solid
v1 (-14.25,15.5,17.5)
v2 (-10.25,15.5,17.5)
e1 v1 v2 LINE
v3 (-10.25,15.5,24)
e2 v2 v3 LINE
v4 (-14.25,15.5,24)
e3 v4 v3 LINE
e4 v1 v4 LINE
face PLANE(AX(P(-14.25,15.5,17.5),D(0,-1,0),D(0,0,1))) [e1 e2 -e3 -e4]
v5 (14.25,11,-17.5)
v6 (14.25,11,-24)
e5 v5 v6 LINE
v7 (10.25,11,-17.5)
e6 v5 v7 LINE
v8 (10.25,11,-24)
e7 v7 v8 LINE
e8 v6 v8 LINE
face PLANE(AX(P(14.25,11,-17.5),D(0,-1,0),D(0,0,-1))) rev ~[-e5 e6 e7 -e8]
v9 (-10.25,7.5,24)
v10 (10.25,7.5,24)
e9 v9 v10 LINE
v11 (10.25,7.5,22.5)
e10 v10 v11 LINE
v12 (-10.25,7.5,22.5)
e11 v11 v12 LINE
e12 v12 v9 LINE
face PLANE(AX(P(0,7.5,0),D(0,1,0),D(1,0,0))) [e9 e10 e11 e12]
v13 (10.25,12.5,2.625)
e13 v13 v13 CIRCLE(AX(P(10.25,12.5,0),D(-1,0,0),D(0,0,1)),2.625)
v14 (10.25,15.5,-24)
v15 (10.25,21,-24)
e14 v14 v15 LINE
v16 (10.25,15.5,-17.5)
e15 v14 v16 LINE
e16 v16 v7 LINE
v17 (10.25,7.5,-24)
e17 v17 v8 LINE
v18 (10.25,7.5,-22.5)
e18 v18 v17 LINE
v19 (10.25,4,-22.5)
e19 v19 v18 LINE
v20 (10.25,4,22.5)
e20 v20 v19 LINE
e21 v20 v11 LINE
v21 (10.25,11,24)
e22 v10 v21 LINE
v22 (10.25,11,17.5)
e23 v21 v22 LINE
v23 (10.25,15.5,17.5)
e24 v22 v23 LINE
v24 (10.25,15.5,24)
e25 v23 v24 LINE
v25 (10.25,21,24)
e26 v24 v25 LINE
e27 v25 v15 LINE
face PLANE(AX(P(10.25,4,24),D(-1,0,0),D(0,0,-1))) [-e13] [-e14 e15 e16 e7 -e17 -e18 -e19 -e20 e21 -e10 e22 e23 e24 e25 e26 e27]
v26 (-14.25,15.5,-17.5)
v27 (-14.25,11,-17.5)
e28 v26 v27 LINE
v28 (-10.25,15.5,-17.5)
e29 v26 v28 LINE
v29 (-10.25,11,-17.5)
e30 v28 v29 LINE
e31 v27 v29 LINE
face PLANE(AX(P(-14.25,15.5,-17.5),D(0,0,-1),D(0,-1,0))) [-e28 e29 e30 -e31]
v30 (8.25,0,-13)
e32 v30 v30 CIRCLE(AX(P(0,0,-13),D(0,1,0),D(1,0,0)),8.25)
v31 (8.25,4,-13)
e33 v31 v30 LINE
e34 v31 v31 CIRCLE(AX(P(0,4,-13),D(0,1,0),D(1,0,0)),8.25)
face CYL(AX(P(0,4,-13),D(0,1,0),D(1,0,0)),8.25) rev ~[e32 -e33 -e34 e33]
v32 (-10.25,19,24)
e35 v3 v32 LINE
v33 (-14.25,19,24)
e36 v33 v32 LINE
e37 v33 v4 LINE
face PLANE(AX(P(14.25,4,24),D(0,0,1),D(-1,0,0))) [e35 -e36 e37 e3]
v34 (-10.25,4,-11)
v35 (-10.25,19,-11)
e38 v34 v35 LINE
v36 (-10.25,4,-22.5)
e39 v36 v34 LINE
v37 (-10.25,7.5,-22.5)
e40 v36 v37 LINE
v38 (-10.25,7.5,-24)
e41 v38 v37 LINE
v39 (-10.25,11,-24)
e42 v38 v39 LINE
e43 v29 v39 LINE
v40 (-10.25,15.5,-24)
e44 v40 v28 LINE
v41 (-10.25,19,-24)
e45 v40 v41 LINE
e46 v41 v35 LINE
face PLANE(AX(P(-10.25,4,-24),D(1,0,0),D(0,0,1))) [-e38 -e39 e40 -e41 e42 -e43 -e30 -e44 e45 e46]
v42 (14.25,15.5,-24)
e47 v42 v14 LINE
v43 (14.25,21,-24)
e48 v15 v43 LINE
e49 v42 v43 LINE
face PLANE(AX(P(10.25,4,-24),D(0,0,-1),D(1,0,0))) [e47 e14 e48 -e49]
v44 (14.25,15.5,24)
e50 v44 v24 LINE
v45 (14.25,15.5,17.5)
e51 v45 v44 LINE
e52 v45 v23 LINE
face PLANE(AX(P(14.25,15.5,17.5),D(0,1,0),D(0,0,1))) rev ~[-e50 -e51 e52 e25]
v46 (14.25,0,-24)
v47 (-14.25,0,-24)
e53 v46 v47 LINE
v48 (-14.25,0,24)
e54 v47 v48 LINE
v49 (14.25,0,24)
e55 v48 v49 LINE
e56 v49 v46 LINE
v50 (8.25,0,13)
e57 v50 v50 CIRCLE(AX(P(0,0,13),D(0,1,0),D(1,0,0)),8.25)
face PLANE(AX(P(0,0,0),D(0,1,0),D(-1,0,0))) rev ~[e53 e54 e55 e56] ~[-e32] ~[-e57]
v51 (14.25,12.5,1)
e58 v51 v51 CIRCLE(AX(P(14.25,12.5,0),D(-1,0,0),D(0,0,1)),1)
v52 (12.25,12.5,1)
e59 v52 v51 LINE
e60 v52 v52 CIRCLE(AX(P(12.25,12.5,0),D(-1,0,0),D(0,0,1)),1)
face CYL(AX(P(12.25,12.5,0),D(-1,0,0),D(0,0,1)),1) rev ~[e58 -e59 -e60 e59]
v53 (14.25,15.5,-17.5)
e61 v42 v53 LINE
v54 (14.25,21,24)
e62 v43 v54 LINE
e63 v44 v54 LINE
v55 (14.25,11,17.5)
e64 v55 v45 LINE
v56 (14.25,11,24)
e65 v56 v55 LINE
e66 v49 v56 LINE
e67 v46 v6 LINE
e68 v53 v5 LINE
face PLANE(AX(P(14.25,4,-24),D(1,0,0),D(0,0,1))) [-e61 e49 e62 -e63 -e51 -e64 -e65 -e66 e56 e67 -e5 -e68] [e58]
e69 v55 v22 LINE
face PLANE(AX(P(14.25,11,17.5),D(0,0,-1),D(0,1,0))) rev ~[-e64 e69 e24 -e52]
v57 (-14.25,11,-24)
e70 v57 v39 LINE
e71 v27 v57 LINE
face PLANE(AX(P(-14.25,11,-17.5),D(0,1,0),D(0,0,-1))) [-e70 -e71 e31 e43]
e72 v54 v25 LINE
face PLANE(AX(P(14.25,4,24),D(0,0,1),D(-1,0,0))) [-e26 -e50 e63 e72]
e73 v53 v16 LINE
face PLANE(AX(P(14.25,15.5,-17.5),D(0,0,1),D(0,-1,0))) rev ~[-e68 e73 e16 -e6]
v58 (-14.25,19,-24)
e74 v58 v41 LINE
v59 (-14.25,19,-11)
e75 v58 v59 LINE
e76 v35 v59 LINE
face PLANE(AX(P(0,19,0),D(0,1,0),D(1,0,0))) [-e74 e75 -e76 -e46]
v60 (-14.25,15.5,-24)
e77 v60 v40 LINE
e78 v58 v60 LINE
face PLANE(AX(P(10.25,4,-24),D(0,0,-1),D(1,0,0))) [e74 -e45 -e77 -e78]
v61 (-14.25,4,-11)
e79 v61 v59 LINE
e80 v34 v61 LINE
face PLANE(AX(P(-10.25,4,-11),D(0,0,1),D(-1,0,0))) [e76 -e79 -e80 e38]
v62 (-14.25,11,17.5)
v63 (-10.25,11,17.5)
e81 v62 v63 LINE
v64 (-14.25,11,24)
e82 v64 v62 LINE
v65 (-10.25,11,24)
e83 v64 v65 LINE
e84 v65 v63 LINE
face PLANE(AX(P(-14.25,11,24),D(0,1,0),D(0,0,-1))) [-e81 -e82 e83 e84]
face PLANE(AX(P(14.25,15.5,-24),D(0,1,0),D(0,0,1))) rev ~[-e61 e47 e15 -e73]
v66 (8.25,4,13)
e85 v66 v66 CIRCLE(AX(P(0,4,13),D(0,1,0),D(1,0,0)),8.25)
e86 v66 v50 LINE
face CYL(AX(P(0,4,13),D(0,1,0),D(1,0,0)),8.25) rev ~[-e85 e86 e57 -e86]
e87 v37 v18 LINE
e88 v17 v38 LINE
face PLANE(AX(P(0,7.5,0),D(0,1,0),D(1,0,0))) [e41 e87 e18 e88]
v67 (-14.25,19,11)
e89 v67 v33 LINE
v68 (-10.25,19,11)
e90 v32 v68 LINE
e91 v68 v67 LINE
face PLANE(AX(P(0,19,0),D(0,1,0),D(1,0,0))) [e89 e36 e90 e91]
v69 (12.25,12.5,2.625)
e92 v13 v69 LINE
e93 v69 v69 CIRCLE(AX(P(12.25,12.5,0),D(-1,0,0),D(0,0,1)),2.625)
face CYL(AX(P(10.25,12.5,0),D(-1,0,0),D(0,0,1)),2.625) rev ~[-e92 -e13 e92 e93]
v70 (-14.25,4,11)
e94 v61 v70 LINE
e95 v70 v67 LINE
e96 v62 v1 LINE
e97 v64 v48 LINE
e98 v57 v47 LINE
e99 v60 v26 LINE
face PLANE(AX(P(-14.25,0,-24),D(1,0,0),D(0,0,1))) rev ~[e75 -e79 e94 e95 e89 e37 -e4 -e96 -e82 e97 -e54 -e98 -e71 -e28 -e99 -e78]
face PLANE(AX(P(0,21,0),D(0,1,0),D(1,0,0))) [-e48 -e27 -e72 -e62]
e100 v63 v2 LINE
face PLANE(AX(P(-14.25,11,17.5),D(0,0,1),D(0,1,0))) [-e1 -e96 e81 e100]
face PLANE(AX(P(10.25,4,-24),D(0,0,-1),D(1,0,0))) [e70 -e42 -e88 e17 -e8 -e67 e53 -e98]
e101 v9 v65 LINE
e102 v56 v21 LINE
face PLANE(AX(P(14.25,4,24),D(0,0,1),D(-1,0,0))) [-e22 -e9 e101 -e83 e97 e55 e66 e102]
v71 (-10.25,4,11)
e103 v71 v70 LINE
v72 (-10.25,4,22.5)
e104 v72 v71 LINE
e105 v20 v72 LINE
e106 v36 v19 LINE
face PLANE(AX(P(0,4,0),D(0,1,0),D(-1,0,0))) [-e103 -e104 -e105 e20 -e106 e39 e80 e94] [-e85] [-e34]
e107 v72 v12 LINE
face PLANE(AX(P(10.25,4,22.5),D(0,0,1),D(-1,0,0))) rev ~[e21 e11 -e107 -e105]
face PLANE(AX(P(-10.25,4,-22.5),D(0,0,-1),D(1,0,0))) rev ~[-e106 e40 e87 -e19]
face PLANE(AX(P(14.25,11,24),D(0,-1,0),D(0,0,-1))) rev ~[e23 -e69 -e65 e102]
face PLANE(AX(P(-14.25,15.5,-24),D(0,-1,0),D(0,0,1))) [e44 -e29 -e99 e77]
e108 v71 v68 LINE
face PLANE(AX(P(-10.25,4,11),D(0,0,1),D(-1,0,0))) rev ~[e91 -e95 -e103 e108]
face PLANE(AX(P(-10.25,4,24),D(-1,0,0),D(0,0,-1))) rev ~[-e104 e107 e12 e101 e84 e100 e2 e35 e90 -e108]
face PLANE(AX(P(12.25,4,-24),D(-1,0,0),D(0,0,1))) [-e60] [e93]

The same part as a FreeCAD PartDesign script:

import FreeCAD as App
import Part
import Sketcher
Q = App.Units.Quantity


def add_polygon(sketch, points):
    """Adds a closed chain of lines whose ends are joined by coincident constraints."""
    first, n = sketch.GeometryCount, len(points)
    for a, b in zip(points, points[1:] + points[:1]):
        sketch.addGeometry(Part.LineSegment(App.Vector(*a, 0), App.Vector(*b, 0)), False)
    for i in range(n):
        sketch.addConstraint(Sketcher.Constraint("Coincident", first + i, 2, first + (i + 1) % n, 1))

doc = App.newDocument("Part")
body = doc.addObject("PartDesign::Body", "Body")

# Sketch on XZ plane
sketch1 = body.newObject("Sketcher::SketchObject", "Sketch")
sketch1.AttachmentSupport = (doc.getObject("XZ_Plane"), [""])
sketch1.MapMode = "FlatFace"
add_polygon(sketch1, [(-14, -24), (-14, 24), (14, 24), (14, -24)])  # lines 0-3
sketch1.addConstraint(Sketcher.Constraint("Vertical", 0))
sketch1.addConstraint(Sketcher.Constraint("Horizontal", 1))
sketch1.addConstraint(Sketcher.Constraint("Vertical", 2))
sketch1.addConstraint(Sketcher.Constraint("Horizontal", 3))
sketch1.addConstraint(Sketcher.Constraint("Symmetric", 0, 2, 2, 2, -1, 1))
sketch1.addConstraint(Sketcher.Constraint("DistanceY", 0, 1, 0, 2, Q("48 mm")))
sketch1.addConstraint(Sketcher.Constraint("DistanceX", 1, 1, 1, 2, Q("28.5 mm")))
pad1 = body.newObject("PartDesign::Pad", "Pad")
pad1.Profile = sketch1
pad1.Length = 4
pad1.Reversed = True

# Sketch on XZ plane
sketch2 = body.newObject("Sketcher::SketchObject", "Sketch001")
sketch2.AttachmentSupport = (doc.getObject("XZ_Plane"), [""])
sketch2.MapMode = "FlatFace"
sketch2.AttachmentOffset = App.Placement(App.Vector(0, 0, -4), App.Rotation())
sketch2.addGeometry(Part.Circle(App.Vector(0, 13, 0), App.Vector(0, 0, 1), 8), False)
sketch2.addGeometry(Part.Circle(App.Vector(0, -13, 0), App.Vector(0, 0, 1), 8), False)
sketch2.addConstraint(Sketcher.Constraint("Equal", 0, 1))
sketch2.addConstraint(Sketcher.Constraint("Symmetric", 0, 3, 1, 3, -1, 1))
sketch2.addConstraint(Sketcher.Constraint("PointOnObject", 0, 3, -2))
sketch2.addConstraint(Sketcher.Constraint("Diameter", 0, Q("16.5 mm")))
sketch2.addConstraint(Sketcher.Constraint("DistanceY", 1, 3, 0, 3, Q("26 mm")))
pocket1 = body.newObject("PartDesign::Pocket", "Pocket")
pocket1.Profile = sketch2
pocket1.Length = 4
pocket1.Reversed = True

# Sketch on XZ plane
sketch3 = body.newObject("Sketcher::SketchObject", "Sketch002")
sketch3.AttachmentSupport = (doc.getObject("XZ_Plane"), [""])
sketch3.MapMode = "FlatFace"
sketch3.AttachmentOffset = App.Placement(App.Vector(0, 0, -4), App.Rotation())
add_polygon(sketch3, [(10.2, 24), (14.2, 24), (14.2, -24), (10.2, -24)])  # lines 0-3
sketch3.addConstraint(Sketcher.Constraint("Horizontal", 0))
sketch3.addConstraint(Sketcher.Constraint("Vertical", 1))
sketch3.addConstraint(Sketcher.Constraint("Horizontal", 2))
sketch3.addConstraint(Sketcher.Constraint("Vertical", 3))
sketch3.addConstraint(Sketcher.Constraint("DistanceX", 0, 1, 0, 2, Q("4 mm")))
sketch3.addConstraint(Sketcher.Constraint("DistanceY", 1, 2, 1, 1, Q("48 mm")))
sketch3.addConstraint(Sketcher.Constraint("DistanceY", -1, 1, 0, 2, Q("24 mm")))
sketch3.addConstraint(Sketcher.Constraint("DistanceX", -1, 1, 0, 2, Q("14.25 mm")))
pad2 = body.newObject("PartDesign::Pad", "Pad001")
pad2.Profile = sketch3
pad2.Length = 17
pad2.Reversed = True

# Sketch on XZ plane
sketch4 = body.newObject("Sketcher::SketchObject", "Sketch003")
sketch4.AttachmentSupport = (doc.getObject("XZ_Plane"), [""])
sketch4.MapMode = "FlatFace"
sketch4.AttachmentOffset = App.Placement(App.Vector(0, 0, -4), App.Rotation())
add_polygon(sketch4, [(-14.2, 11), (-14.2, 24), (-10.2, 24), (-10.2, 11)])  # lines 0-3
add_polygon(sketch4, [(-14.2, -24), (-14.2, -11), (-10.2, -11), (-10.2, -24)])  # lines 4-7
sketch4.addConstraint(Sketcher.Constraint("Vertical", 0))
sketch4.addConstraint(Sketcher.Constraint("Horizontal", 1))
sketch4.addConstraint(Sketcher.Constraint("Vertical", 2))
sketch4.addConstraint(Sketcher.Constraint("Horizontal", 3))
sketch4.addConstraint(Sketcher.Constraint("Vertical", 4))
sketch4.addConstraint(Sketcher.Constraint("Horizontal", 5))
sketch4.addConstraint(Sketcher.Constraint("Vertical", 6))
sketch4.addConstraint(Sketcher.Constraint("Horizontal", 7))
sketch4.addConstraint(Sketcher.Constraint("Symmetric", 3, 2, 4, 2, -1))
sketch4.addConstraint(Sketcher.Constraint("Symmetric", 1, 2, 6, 2, -1))
sketch4.addConstraint(Sketcher.Constraint("DistanceX", 1, 1, 1, 2, Q("4 mm")))
sketch4.addConstraint(Sketcher.Constraint("DistanceY", 0, 1, 0, 2, Q("13 mm")))
sketch4.addConstraint(Sketcher.Constraint("DistanceY", -1, 1, 0, 2, Q("24 mm")))
sketch4.addConstraint(Sketcher.Constraint("DistanceX", 0, 2, -1, 1, Q("14.25 mm")))
pad3 = body.newObject("PartDesign::Pad", "Pad002")
pad3.Profile = sketch4
pad3.Length = 15
pad3.Reversed = True

# Sketch on YZ plane
sketch5 = body.newObject("Sketcher::SketchObject", "Sketch004")
sketch5.AttachmentSupport = (doc.getObject("YZ_Plane"), [""])
sketch5.MapMode = "FlatFace"
sketch5.AttachmentOffset = App.Placement(App.Vector(0, 0, -14.25), App.Rotation())
add_polygon(sketch5, [(15.5, -24), (11, -24), (11, -17.5), (15.5, -17.5)])  # lines 0-3
add_polygon(sketch5, [(15.5, 24), (15.5, 17.5), (11, 17.5), (11, 24)])  # lines 4-7
sketch5.addConstraint(Sketcher.Constraint("Horizontal", 0))
sketch5.addConstraint(Sketcher.Constraint("Vertical", 1))
sketch5.addConstraint(Sketcher.Constraint("Horizontal", 2))
sketch5.addConstraint(Sketcher.Constraint("Vertical", 3))
sketch5.addConstraint(Sketcher.Constraint("Vertical", 4))
sketch5.addConstraint(Sketcher.Constraint("Horizontal", 5))
sketch5.addConstraint(Sketcher.Constraint("Vertical", 6))
sketch5.addConstraint(Sketcher.Constraint("Horizontal", 7))
sketch5.addConstraint(Sketcher.Constraint("Symmetric", 2, 2, 4, 2, -1))
sketch5.addConstraint(Sketcher.Constraint("Symmetric", 0, 2, 6, 2, -1))
sketch5.addConstraint(Sketcher.Constraint("DistanceX", 0, 2, 0, 1, Q("4.5 mm")))
sketch5.addConstraint(Sketcher.Constraint("DistanceY", 1, 1, 1, 2, Q("6.5 mm")))
sketch5.addConstraint(Sketcher.Constraint("DistanceX", -1, 1, 0, 2, Q("11 mm")))
sketch5.addConstraint(Sketcher.Constraint("DistanceY", 0, 2, -1, 1, Q("24 mm")))
pocket2 = body.newObject("PartDesign::Pocket", "Pocket001")
pocket2.Profile = sketch5
pocket2.Length = 4
pocket2.Reversed = True

# Sketch on YZ plane
sketch6 = body.newObject("Sketcher::SketchObject", "Sketch005")
sketch6.AttachmentSupport = (doc.getObject("YZ_Plane"), [""])
sketch6.MapMode = "FlatFace"
sketch6.AttachmentOffset = App.Placement(App.Vector(0, 0, 10.25), App.Rotation())
sketch6.addGeometry(Part.Circle(App.Vector(12.5, 0, 0), App.Vector(0, 0, 1), 2.6), False)
sketch6.addConstraint(Sketcher.Constraint("PointOnObject", 0, 3, -1))
sketch6.addConstraint(Sketcher.Constraint("Diameter", 0, Q("5.25 mm")))
sketch6.addConstraint(Sketcher.Constraint("DistanceX", -1, 1, 0, 3, Q("12.5 mm")))
pocket3 = body.newObject("PartDesign::Pocket", "Pocket002")
pocket3.Profile = sketch6
pocket3.Length = 2
pocket3.Reversed = True

# Sketch on YZ plane
sketch7 = body.newObject("Sketcher::SketchObject", "Sketch006")
sketch7.AttachmentSupport = (doc.getObject("YZ_Plane"), [""])
sketch7.MapMode = "FlatFace"
sketch7.AttachmentOffset = App.Placement(App.Vector(0, 0, 12.25), App.Rotation())
sketch7.addGeometry(Part.Circle(App.Vector(12.5, 0, 0), App.Vector(0, 0, 1), 1), False)
sketch7.addConstraint(Sketcher.Constraint("PointOnObject", 0, 3, -1))
sketch7.addConstraint(Sketcher.Constraint("Diameter", 0, Q("2 mm")))
sketch7.addConstraint(Sketcher.Constraint("DistanceX", -1, 1, 0, 3, Q("12.5 mm")))
pocket4 = body.newObject("PartDesign::Pocket", "Pocket003")
pocket4.Profile = sketch7
pocket4.Length = 2
pocket4.Reversed = True

# Sketch on XZ plane
sketch8 = body.newObject("Sketcher::SketchObject", "Sketch007")
sketch8.AttachmentSupport = (doc.getObject("XZ_Plane"), [""])
sketch8.MapMode = "FlatFace"
sketch8.AttachmentOffset = App.Placement(App.Vector(0, 0, -4), App.Rotation())
add_polygon(sketch8, [(-10.2, 22.5), (-10.2, 24), (10.2, 24), (10.2, 22.5)])  # lines 0-3
add_polygon(sketch8, [(-10.2, -24), (-10.2, -22.5), (10.2, -22.5), (10.2, -24)])  # lines 4-7
sketch8.addConstraint(Sketcher.Constraint("Vertical", 0))
sketch8.addConstraint(Sketcher.Constraint("Horizontal", 1))
sketch8.addConstraint(Sketcher.Constraint("Vertical", 2))
sketch8.addConstraint(Sketcher.Constraint("Horizontal", 3))
sketch8.addConstraint(Sketcher.Constraint("Vertical", 4))
sketch8.addConstraint(Sketcher.Constraint("Horizontal", 5))
sketch8.addConstraint(Sketcher.Constraint("Vertical", 6))
sketch8.addConstraint(Sketcher.Constraint("Horizontal", 7))
sketch8.addConstraint(Sketcher.Constraint("Symmetric", 2, 2, 4, 2, -1, 1))
sketch8.addConstraint(Sketcher.Constraint("Symmetric", 0, 2, 6, 2, -1, 1))
sketch8.addConstraint(Sketcher.Constraint("Vertical", 3, 2, 4, 2))
sketch8.addConstraint(Sketcher.Constraint("DistanceX", 1, 1, 1, 2, Q("20.5 mm")))
sketch8.addConstraint(Sketcher.Constraint("DistanceY", 0, 1, 0, 2, Q("1.5 mm")))
sketch8.addConstraint(Sketcher.Constraint("DistanceY", -1, 1, 0, 2, Q("24 mm")))
pad4 = body.newObject("PartDesign::Pad", "Pad003")
pad4.Profile = sketch8
pad4.Length = 3.5
pad4.Reversed = True

# Sketch on YZ plane
sketch9 = body.newObject("Sketcher::SketchObject", "Sketch008")
sketch9.AttachmentSupport = (doc.getObject("YZ_Plane"), [""])
sketch9.MapMode = "FlatFace"
sketch9.AttachmentOffset = App.Placement(App.Vector(0, 0, 14.25), App.Rotation())
add_polygon(sketch9, [(11, -24), (15.5, -24), (15.5, -17.5), (11, -17.5)])  # lines 0-3
sketch9.addConstraint(Sketcher.Constraint("Horizontal", 0))
sketch9.addConstraint(Sketcher.Constraint("Vertical", 1))
sketch9.addConstraint(Sketcher.Constraint("Horizontal", 2))
sketch9.addConstraint(Sketcher.Constraint("Vertical", 3))
sketch9.addConstraint(Sketcher.Constraint("DistanceX", 0, 1, 0, 2, Q("4.5 mm")))
sketch9.addConstraint(Sketcher.Constraint("DistanceY", 1, 1, 1, 2, Q("6.5 mm")))
sketch9.addConstraint(Sketcher.Constraint("DistanceX", -1, 1, 2, 2, Q("11 mm")))
sketch9.addConstraint(Sketcher.Constraint("DistanceY", 0, 2, -1, 1, Q("24 mm")))
pocket5 = body.newObject("PartDesign::Pocket", "Pocket004")
pocket5.Profile = sketch9
pocket5.Length = 4

# Sketch on YZ plane
sketch10 = body.newObject("Sketcher::SketchObject", "Sketch009")
sketch10.AttachmentSupport = (doc.getObject("YZ_Plane"), [""])
sketch10.MapMode = "FlatFace"
sketch10.AttachmentOffset = App.Placement(App.Vector(0, 0, 14.25), App.Rotation())
add_polygon(sketch10, [(11, 17.5), (15.5, 17.5), (15.5, 24), (11, 24)])  # lines 0-3
sketch10.addConstraint(Sketcher.Constraint("Horizontal", 0))
sketch10.addConstraint(Sketcher.Constraint("Vertical", 1))
sketch10.addConstraint(Sketcher.Constraint("Horizontal", 2))
sketch10.addConstraint(Sketcher.Constraint("Vertical", 3))
sketch10.addConstraint(Sketcher.Constraint("DistanceX", 0, 1, 0, 2, Q("4.5 mm")))
sketch10.addConstraint(Sketcher.Constraint("DistanceY", 1, 1, 1, 2, Q("6.5 mm")))
sketch10.addConstraint(Sketcher.Constraint("DistanceX", -1, 1, 2, 2, Q("11 mm")))
sketch10.addConstraint(Sketcher.Constraint("DistanceY", -1, 1, 1, 2, Q("24 mm")))
pocket6 = body.newObject("PartDesign::Pocket", "Pocket005")
pocket6.Profile = sketch10
pocket6.Length = 4

doc.recompute()
